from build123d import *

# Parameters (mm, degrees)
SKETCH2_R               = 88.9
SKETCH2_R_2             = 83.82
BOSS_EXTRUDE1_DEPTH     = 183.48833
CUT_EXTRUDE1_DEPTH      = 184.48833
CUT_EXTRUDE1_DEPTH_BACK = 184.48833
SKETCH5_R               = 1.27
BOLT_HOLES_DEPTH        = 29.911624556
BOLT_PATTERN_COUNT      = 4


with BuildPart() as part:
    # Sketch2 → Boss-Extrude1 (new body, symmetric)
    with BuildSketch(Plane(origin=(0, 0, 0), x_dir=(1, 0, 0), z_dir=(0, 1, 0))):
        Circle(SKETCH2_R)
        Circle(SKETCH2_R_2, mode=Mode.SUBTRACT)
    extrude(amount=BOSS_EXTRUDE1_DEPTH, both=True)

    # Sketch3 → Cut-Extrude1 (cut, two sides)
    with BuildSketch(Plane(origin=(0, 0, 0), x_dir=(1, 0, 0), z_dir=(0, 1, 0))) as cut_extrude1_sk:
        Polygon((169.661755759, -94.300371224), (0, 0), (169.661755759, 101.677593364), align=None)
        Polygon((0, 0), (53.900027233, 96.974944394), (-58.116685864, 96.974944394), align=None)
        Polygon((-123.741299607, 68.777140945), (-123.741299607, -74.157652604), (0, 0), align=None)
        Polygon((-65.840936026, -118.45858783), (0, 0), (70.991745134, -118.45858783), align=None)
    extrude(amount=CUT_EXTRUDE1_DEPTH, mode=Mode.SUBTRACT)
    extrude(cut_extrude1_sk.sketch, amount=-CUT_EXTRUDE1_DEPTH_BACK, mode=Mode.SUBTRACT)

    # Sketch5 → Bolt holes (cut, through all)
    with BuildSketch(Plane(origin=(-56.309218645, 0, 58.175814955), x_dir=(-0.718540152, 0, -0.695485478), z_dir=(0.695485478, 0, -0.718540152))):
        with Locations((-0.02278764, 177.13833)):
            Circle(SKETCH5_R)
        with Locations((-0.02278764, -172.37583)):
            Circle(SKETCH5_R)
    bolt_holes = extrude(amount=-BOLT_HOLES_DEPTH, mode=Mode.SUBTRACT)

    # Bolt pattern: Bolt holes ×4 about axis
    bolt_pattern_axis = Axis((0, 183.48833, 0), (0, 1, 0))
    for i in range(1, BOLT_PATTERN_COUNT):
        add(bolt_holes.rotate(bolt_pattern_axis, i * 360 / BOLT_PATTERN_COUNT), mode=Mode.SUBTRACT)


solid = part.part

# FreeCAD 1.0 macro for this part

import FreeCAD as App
import Part
import Sketcher

V = App.Vector
Q = App.Units.Quantity


def add_polygon(sketch, points):
    """Adds a closed chain of lines whose ends are joined by coincident constraints."""
    first, n = sketch.GeometryCount, len(points)
    for a, b in zip(points, points[1:] + points[:1]):
        sketch.addGeometry(Part.LineSegment(App.Vector(*a, 0), App.Vector(*b, 0)), False)
    for i in range(n):
        sketch.addConstraint(Sketcher.Constraint("Coincident", first + i, 2, first + (i + 1) % n, 1))

doc = App.newDocument("Part")
body = doc.addObject("PartDesign::Body", "Body")
body.AllowCompound = True

# Sketch on XZ plane
sketch1 = doc.addObject("Sketcher::SketchObject", "Sketch")
body.addObject(sketch1)
sketch1.AttachmentSupport = (doc.XZ_Plane, [""])
sketch1.MapMode = "FlatFace"
sketch1.addGeometry([
    Part.Circle(V(0, 0, 0), V(0, 0, 1), 89),
    Part.Circle(V(0, 0, 0), V(0, 0, 1), 84),
], False)
sketch1.addConstraint([
    Sketcher.Constraint("Coincident", 0, 3, -1, 1),
    Sketcher.Constraint("Coincident", 1, 3, -1, 1),
    Sketcher.Constraint("Diameter", 0, Q("7 in")),
    Sketcher.Constraint("Diameter", 1, Q("6.6 in")),
])
pad1 = doc.addObject("PartDesign::Pad", "Pad")
body.addObject(pad1)
pad1.Profile = sketch1
pad1.Length = Q("14.4479 in")
pad1.Midplane = True

# Sketch on XZ plane
sketch2 = doc.addObject("Sketcher::SketchObject", "Sketch001")
body.addObject(sketch2)
sketch2.AttachmentSupport = (doc.XZ_Plane, [""])
sketch2.MapMode = "FlatFace"
add_polygon(sketch2, [(0, 0), (170, 94), (170, -102)])  # lines 0-2
add_polygon(sketch2, [(0, 0), (54, -97), (-58, -97)])  # lines 3-5
add_polygon(sketch2, [(-124, -69), (-124, 74), (0, 0)])  # lines 6-8
add_polygon(sketch2, [(0, 0), (-66, 118), (71, 118)])  # lines 9-11
sketch2.addConstraint([
    Sketcher.Constraint("Vertical", 1),
    Sketcher.Constraint("Horizontal", 4),
    Sketcher.Constraint("Vertical", 6),
    Sketcher.Constraint("Horizontal", 10),
    Sketcher.Constraint("Coincident", 2, 2, -1, 1),
    Sketcher.Constraint("Coincident", 5, 2, -1, 1),
    Sketcher.Constraint("Coincident", 7, 2, -1, 1),
    Sketcher.Constraint("Coincident", 11, 2, -1, 1),
    Sketcher.Constraint("Perpendicular", 0, 3),
    Sketcher.Constraint("Perpendicular", 2, 5),
    Sketcher.Constraint("Perpendicular", 5, 7),
    Sketcher.Constraint("Perpendicular", 3, 8),
    Sketcher.Constraint("Perpendicular", 8, 9),
    Sketcher.Constraint("Perpendicular", 7, 11),
    Sketcher.Constraint("DistanceX", 10, 1, 10, 2, Q("136.832681 mm")),
    Sketcher.Constraint("DistanceX", 6, 2, -1, 1, Q("123.7413 mm")),
    Sketcher.Constraint("Distance", 0, Q("194.107371 mm")),
    Sketcher.Constraint("Distance", 11, Q("138.102371 mm")),
    Sketcher.Constraint("DistanceX", 4, 2, 4, 1, Q("112.016713 mm")),
    Sketcher.Constraint("DistanceY", 1, 2, 1, 1, Q("195.977965 mm")),
])
pocket1 = doc.addObject("PartDesign::Pocket", "Pocket")
body.addObject(pocket1)
pocket1.Profile = sketch2
pocket1.Type = "ThroughAll"
pocket1.Midplane = True

# Sketch on an angled plane
sketch3 = doc.addObject("Sketcher::SketchObject", "Sketch002")
body.addObject(sketch3)
sketch3.Placement = App.Placement(V(-56.309219, 0, 58.175815), App.Rotation(V(-0.718540152, 0, -0.695485478), V(0, 1, 0), V(0.695485478, 0, -0.718540152), "ZXY"))
sketch3.addGeometry([
    Part.Circle(V(0, 177.1, 0), V(0, 0, 1), 1.3),
    Part.Circle(V(0, -172.4, 0), V(0, 0, 1), 1.3),
], False)
sketch3.addConstraint([
    Sketcher.Constraint("Equal", 0, 1),
    Sketcher.Constraint("Vertical", 0, 3, 1, 3),
    Sketcher.Constraint("Diameter", 0, Q("0.1 in")),
    Sketcher.Constraint("DistanceY", 1, 3, 0, 3, Q("13.7604 in")),
    Sketcher.Constraint("DistanceY", -1, 1, 0, 3, Q("177.13833 mm")),
    Sketcher.Constraint("DistanceX", 0, 3, -1, 1, Q("0.022788 mm")),
])
pocket2 = doc.addObject("PartDesign::Pocket", "Pocket001")
body.addObject(pocket2)
pocket2.Profile = sketch3
pocket2.Type = "ThroughAll"
doc.recompute()

polarpattern = doc.addObject("PartDesign::PolarPattern", "PolarPattern")
body.addObject(polarpattern)
polarpattern.Originals = [pocket2]
polarpattern.Axis = (doc.Y_Axis, [""])
polarpattern.Angle = 360
polarpattern.Occurrences = 4
body.Tip = polarpattern

doc.recompute()
